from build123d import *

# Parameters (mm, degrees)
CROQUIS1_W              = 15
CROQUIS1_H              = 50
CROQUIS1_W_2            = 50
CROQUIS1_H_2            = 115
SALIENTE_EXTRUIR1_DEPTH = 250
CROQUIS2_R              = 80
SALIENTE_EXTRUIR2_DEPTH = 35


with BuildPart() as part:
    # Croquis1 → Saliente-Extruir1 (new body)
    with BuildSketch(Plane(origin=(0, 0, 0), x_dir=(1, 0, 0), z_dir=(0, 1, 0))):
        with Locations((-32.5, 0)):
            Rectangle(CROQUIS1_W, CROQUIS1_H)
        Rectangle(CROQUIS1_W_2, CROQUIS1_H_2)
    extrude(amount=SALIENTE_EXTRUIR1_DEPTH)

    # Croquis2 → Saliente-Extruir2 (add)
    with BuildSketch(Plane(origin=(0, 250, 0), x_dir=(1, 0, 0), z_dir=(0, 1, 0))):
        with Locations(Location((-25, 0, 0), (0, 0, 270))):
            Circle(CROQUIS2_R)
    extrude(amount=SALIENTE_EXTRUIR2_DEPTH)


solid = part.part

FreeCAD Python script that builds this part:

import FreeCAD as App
import Part
import Sketcher
from FreeCAD import Vector
Q = App.Units.Quantity

doc = App.newDocument("Part")
params = doc.addObject("Spreadsheet::Sheet", "Params")
for row, (alias, value) in enumerate([
    ("sketch1_width", "15 mm"),
    ("sketch1_width2", "50 mm"),
    ("sketch1_height", "115 mm"),
    ("pad1_length", "250 mm"),
    ("sketch2_diameter", "160 mm"),
    ("pad2_length", "35 mm"),
], start=1):
    params.set(f"A{row}", alias)
    params.set(f"B{row}", "=" + value)
    params.setAlias(f"B{row}", alias)

body = doc.addObject("PartDesign::Body", "Body")

# Sketch on XZ plane
sketch1 = body.newObject("Sketcher::SketchObject", "Sketch")
sketch1.AttachmentSupport = (doc.getObject("XZ_Plane"), [""])
sketch1.MapMode = "FlatFace"
sketch1.addGeometry([
    Part.LineSegment(Vector(-40, -25, 0), Vector(-40, 25, 0)),  # 0
    Part.LineSegment(Vector(-40, 25, 0), Vector(-25, 25, 0)),  # 1
    Part.LineSegment(Vector(-25, 25, 0), Vector(-25, 58, 0)),  # 2
    Part.LineSegment(Vector(-25, 58, 0), Vector(25, 58, 0)),  # 3
    Part.LineSegment(Vector(25, 58, 0), Vector(25, -58, 0)),  # 4
    Part.LineSegment(Vector(25, -58, 0), Vector(-25, -58, 0)),  # 5
    Part.LineSegment(Vector(-25, -58, 0), Vector(-25, -25, 0)),  # 6
    Part.LineSegment(Vector(-25, -25, 0), Vector(-40, -25, 0)),  # 7
], False)
sketch1.addConstraint([
    Sketcher.Constraint("Coincident", 0, 2, 1, 1),
    Sketcher.Constraint("Coincident", 1, 2, 2, 1),
    Sketcher.Constraint("Coincident", 2, 2, 3, 1),
    Sketcher.Constraint("Coincident", 3, 2, 4, 1),
    Sketcher.Constraint("Coincident", 4, 2, 5, 1),
    Sketcher.Constraint("Coincident", 5, 2, 6, 1),
    Sketcher.Constraint("Coincident", 6, 2, 7, 1),
    Sketcher.Constraint("Coincident", 7, 2, 0, 1),
    Sketcher.Constraint("Vertical", 0),
    Sketcher.Constraint("Horizontal", 1),
    Sketcher.Constraint("Vertical", 2),
    Sketcher.Constraint("Horizontal", 3),
    Sketcher.Constraint("Vertical", 4),
    Sketcher.Constraint("Horizontal", 5),
    Sketcher.Constraint("Vertical", 6),
    Sketcher.Constraint("Horizontal", 7),
    Sketcher.Constraint("Symmetric", 2, 2, 4, 2, -1, 1),
    Sketcher.Constraint("Symmetric", 1, 2, 6, 2, -1),
    Sketcher.Constraint("Equal", 5, 0),
    Sketcher.Constraint("DistanceX", 1, 1, 1, 2, Q("15 mm")),
    Sketcher.Constraint("DistanceX", 3, 1, 3, 2, Q("50 mm")),
    Sketcher.Constraint("DistanceY", 4, 2, 4, 1, Q("115 mm")),
])
sketch1.setExpression("Constraints[19]", "Params.sketch1_width")
sketch1.setExpression("Constraints[20]", "Params.sketch1_width2")
sketch1.setExpression("Constraints[21]", "Params.sketch1_height")
pad1 = body.newObject("PartDesign::Pad", "Pad")
pad1.Profile = sketch1
pad1.setExpression("Length", "Params.pad1_length")
pad1.Reversed = True

# Sketch on XZ plane
sketch2 = body.newObject("Sketcher::SketchObject", "Sketch001")
sketch2.AttachmentSupport = (doc.getObject("XZ_Plane"), [""])
sketch2.MapMode = "FlatFace"
sketch2.AttachmentOffset = App.Placement(Vector(0, 0, -250), App.Rotation())
sketch2.addGeometry(Part.Circle(Vector(-25, 0, 0), Vector(0, 0, 1), 80), False)
sketch2.addConstraint([
    Sketcher.Constraint("PointOnObject", 0, 3, -1),
    Sketcher.Constraint("Diameter", 0, Q("160 mm")),
    Sketcher.Constraint("DistanceX", 0, 3, -1, 1, Q("25 mm")),
])
sketch2.setExpression("Constraints[1]", "Params.sketch2_diameter")
pad2 = body.newObject("PartDesign::Pad", "Pad001")
pad2.Profile = sketch2
pad2.setExpression("Length", "Params.pad2_length")
pad2.Reversed = True

doc.recompute()
